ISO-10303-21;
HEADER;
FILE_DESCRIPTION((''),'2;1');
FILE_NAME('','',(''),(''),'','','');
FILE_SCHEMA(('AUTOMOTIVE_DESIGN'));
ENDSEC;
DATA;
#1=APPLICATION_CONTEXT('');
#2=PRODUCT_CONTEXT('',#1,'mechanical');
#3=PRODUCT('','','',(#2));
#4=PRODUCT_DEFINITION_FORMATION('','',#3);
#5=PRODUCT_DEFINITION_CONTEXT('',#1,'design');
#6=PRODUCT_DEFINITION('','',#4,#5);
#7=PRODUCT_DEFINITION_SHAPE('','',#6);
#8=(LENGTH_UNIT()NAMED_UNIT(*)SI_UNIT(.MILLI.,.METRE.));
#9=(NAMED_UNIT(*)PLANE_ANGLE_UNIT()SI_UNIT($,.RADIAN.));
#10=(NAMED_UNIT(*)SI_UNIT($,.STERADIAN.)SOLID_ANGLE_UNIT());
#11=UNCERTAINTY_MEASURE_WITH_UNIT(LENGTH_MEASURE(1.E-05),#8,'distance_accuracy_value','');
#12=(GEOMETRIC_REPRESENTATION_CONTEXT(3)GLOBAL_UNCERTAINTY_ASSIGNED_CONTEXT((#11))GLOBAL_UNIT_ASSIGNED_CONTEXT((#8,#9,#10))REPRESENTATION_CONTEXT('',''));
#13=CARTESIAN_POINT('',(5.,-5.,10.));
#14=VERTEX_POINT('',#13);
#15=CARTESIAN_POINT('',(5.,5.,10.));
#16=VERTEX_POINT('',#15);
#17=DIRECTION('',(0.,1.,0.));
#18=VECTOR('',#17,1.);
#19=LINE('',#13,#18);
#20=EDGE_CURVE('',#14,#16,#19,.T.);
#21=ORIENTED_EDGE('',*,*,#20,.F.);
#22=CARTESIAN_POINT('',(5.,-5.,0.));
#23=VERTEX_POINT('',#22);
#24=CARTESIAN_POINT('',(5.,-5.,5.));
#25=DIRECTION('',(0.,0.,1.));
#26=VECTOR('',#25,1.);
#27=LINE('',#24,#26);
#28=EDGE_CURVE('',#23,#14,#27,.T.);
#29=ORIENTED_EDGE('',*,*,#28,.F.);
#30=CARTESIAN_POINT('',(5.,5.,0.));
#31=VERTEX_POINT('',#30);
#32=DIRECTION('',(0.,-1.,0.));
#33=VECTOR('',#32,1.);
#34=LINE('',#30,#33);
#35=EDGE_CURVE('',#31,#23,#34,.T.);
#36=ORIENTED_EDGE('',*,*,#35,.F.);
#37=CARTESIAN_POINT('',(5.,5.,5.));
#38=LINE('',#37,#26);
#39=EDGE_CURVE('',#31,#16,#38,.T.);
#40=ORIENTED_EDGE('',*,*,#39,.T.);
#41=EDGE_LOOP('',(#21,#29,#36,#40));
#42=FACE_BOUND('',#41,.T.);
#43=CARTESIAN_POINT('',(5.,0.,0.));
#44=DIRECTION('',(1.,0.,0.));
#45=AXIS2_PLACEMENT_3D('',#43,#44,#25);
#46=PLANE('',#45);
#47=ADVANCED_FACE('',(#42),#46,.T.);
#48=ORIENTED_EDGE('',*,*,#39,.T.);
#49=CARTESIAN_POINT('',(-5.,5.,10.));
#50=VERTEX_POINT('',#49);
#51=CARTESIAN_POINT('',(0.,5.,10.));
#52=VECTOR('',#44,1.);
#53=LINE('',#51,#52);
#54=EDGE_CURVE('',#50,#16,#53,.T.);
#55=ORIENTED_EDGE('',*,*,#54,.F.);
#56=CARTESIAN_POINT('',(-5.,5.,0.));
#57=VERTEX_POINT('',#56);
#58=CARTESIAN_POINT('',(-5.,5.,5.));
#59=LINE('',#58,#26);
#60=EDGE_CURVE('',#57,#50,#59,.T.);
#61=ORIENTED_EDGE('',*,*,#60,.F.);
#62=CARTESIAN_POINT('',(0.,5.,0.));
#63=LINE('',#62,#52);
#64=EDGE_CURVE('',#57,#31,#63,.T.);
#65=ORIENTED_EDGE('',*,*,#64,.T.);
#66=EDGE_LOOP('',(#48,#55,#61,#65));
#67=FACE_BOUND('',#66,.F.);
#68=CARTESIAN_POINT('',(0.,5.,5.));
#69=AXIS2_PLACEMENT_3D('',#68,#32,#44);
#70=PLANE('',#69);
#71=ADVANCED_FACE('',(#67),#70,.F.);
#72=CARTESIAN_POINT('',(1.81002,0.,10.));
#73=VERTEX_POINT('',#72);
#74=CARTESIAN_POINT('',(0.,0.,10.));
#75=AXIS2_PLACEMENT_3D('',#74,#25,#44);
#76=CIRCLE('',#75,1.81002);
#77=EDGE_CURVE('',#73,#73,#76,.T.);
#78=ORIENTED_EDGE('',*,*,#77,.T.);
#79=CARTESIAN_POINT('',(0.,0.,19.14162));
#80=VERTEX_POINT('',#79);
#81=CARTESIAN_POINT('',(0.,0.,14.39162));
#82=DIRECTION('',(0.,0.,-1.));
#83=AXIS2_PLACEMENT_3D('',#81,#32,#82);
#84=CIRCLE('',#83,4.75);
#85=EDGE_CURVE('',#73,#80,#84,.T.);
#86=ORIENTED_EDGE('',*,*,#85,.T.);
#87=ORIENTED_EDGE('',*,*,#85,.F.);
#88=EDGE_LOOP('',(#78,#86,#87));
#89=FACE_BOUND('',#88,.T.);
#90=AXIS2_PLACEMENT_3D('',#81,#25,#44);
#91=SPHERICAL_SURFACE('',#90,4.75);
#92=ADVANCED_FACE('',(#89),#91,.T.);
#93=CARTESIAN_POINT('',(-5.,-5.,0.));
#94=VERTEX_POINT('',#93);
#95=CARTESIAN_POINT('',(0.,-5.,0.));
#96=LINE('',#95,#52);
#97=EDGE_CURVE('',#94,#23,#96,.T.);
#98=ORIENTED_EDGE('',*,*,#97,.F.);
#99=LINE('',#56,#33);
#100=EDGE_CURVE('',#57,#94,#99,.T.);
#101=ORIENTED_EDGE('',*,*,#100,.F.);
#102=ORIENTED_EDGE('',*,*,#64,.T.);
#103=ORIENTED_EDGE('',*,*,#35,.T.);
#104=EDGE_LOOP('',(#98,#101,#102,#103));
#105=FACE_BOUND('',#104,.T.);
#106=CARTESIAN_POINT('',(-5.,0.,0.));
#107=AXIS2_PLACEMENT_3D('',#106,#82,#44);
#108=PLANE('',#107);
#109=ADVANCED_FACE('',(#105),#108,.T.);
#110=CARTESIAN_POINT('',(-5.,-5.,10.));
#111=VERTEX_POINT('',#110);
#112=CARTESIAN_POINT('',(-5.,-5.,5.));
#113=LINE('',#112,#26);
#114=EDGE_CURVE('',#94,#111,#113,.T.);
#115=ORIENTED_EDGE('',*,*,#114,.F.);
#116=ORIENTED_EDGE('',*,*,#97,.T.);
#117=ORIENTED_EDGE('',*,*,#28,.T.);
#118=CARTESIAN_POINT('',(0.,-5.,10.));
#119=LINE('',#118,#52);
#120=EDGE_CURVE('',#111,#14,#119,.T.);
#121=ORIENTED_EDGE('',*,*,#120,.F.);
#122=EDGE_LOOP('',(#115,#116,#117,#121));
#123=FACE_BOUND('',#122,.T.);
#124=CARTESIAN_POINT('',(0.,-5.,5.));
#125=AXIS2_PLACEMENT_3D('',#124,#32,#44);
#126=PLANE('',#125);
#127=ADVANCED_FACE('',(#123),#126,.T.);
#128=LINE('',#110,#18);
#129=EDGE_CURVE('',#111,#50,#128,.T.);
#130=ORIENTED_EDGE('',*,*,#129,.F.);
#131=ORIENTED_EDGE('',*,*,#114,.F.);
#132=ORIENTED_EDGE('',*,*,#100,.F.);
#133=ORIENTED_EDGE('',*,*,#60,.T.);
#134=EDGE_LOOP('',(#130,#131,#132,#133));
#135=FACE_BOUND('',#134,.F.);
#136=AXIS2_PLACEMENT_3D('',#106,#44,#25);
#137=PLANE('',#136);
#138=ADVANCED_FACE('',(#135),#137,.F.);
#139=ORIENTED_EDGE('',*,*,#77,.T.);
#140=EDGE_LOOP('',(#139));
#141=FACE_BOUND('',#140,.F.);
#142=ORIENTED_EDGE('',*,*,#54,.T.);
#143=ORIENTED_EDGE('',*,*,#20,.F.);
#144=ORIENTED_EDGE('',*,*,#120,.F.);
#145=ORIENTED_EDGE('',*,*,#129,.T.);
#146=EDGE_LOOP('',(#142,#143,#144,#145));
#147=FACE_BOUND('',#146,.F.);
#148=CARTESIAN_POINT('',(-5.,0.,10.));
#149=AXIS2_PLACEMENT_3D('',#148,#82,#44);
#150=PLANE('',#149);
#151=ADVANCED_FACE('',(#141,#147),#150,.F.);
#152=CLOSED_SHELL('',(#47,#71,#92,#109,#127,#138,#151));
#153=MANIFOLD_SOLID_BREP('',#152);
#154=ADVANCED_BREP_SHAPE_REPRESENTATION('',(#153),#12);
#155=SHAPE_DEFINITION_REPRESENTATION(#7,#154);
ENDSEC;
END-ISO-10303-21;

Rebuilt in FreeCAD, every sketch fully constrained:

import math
import FreeCAD as App
import Part
import Sketcher
Q = App.Units.Quantity


def add_polygon(sketch, points):
    """Adds a closed chain of lines whose ends are joined by coincident constraints."""
    first, n = sketch.GeometryCount, len(points)
    for a, b in zip(points, points[1:] + points[:1]):
        sketch.addGeometry(Part.LineSegment(App.Vector(*a, 0), App.Vector(*b, 0)), False)
    for i in range(n):
        sketch.addConstraint(Sketcher.Constraint("Coincident", first + i, 2, first + (i + 1) % n, 1))

doc = App.newDocument("Part")
body = doc.addObject("PartDesign::Body", "Body")

sketch1 = body.newObject("Sketcher::SketchObject", "Sketch")
sketch1.AttachmentSupport = (doc.getObject("XZ_Plane"), [""])
sketch1.MapMode = "FlatFace"
add_polygon(sketch1, [(-5, 10), (-5, 0), (5, 0), (5, 10)])
sketch1.addConstraint([
    Sketcher.Constraint("Vertical", 0),
    Sketcher.Constraint("Horizontal", 1),
    Sketcher.Constraint("Vertical", 2),
    Sketcher.Constraint("Horizontal", 3),
    Sketcher.Constraint("Symmetric", 0, 2, 1, 2, -1, 1),
    Sketcher.Constraint("Equal", 3, 0),
    Sketcher.Constraint("DistanceX", 1, 1, 1, 2, Q("10 mm")),
])
pad1 = body.newObject("PartDesign::Pad", "Pad")
pad1.Profile = sketch1
pad1.Length = 10
pad1.Midplane = True

sketch2 = body.newObject("Sketcher::SketchObject", "Sketch001")
sketch2.AttachmentSupport = (doc.getObject("XZ_Plane"), [""])
sketch2.MapMode = "FlatFace"
sketch2.addGeometry([
    Part.ArcOfCircle(Part.Circle(App.Vector(0, 14.4, 0), App.Vector(0, 0, 1), 4.8), math.radians(-90), math.radians(90)),
    Part.LineSegment(App.Vector(0, 19.1, 0), App.Vector(0, 9.6, 0)),
], False)
sketch2.addConstraint([
    Sketcher.Constraint("Coincident", 0, 1, 1, 2),
    Sketcher.Constraint("Coincident", 1, 1, 0, 2),
    Sketcher.Constraint("Vertical", 1),
    Sketcher.Constraint("PointOnObject", 0, 3, -2),
    Sketcher.Constraint("PointOnObject", 0, 1, -2),
    Sketcher.Constraint("Radius", 0, Q("4.75 mm")),
    Sketcher.Constraint("DistanceY", -1, 1, 0, 3, Q("14.39162 mm")),
])
revolution = body.newObject("PartDesign::Revolution", "Revolution")
revolution.Profile = sketch2
revolution.ReferenceAxis = (sketch2, ["V_Axis"])
revolution.Angle = 360

doc.recompute()
